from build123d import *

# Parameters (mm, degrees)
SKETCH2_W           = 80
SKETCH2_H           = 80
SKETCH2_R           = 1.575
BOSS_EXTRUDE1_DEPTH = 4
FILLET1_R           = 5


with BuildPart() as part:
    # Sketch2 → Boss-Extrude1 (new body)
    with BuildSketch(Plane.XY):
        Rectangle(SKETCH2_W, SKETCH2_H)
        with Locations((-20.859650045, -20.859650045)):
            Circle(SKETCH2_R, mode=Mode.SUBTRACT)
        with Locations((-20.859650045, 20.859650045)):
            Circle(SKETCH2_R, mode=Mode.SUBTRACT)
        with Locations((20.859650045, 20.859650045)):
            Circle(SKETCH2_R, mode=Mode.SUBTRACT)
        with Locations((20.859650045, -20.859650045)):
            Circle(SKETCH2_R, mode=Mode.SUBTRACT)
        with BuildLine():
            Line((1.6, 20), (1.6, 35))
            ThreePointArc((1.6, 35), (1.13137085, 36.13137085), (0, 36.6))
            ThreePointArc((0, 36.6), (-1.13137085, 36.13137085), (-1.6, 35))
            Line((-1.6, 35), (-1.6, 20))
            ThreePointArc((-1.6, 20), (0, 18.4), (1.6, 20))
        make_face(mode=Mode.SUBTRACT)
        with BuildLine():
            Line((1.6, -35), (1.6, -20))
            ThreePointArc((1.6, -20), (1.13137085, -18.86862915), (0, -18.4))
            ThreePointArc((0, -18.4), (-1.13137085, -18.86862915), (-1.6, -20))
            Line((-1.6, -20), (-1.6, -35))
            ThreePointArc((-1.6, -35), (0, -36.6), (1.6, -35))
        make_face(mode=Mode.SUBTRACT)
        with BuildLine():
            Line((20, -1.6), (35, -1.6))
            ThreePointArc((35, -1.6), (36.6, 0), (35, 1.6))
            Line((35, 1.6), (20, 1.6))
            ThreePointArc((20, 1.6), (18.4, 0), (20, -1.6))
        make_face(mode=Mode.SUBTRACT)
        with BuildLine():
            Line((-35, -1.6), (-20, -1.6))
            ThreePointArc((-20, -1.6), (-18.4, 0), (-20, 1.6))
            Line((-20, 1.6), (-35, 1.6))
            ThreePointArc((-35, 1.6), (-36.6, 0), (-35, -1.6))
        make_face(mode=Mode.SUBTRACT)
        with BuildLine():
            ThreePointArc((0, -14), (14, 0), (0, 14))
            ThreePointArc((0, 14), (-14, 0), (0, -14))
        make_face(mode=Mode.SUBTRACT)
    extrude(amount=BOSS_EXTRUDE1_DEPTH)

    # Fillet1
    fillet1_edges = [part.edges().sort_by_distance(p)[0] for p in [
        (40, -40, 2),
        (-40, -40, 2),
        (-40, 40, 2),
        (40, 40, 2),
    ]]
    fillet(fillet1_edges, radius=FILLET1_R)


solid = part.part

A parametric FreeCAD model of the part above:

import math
import FreeCAD as App
import Part
import Sketcher

V = App.Vector
Q = App.Units.Quantity


def edges_at(feature, points):
    """Names of the edges that pass closest to the given points."""
    edges = feature.Shape.Edges
    near = lambda p: min(range(len(edges)), key=lambda i: edges[i].distToShape(Part.Vertex(*p))[0])
    return sorted({f"Edge{near(p) + 1}" for p in points})


def add_polygon(sketch, points):
    """Adds a closed chain of lines whose ends are joined by coincident constraints."""
    first, n = sketch.GeometryCount, len(points)
    for a, b in zip(points, points[1:] + points[:1]):
        sketch.addGeometry(Part.LineSegment(App.Vector(*a, 0), App.Vector(*b, 0)), False)
    for i in range(n):
        sketch.addConstraint(Sketcher.Constraint("Coincident", first + i, 2, first + (i + 1) % n, 1))

doc = App.newDocument("Part")
body = doc.addObject("PartDesign::Body", "Body")

sketch1 = body.newObject("Sketcher::SketchObject", "Sketch")
sketch1.AttachmentSupport = (doc.getObject("XY_Plane"), [""])
sketch1.MapMode = "FlatFace"
add_polygon(sketch1, [(-40, 40), (-40, -40), (40, -40), (40, 40)])
sketch1.addGeometry(Part.Circle(V(-20.9, -20.9, 0), V(0, 0, 1), 1.6), False)
sketch1.addGeometry(Part.LineSegment(V(1.6, -20, 0), V(1.6, -35, 0)), False)
sketch1.addGeometry(Part.ArcOfCircle(Part.Circle(V(0, -35, 0), V(0, 0, 1), 1.6), math.radians(180), math.radians(360)), False)
sketch1.addGeometry(Part.LineSegment(V(-1.6, -35, 0), V(-1.6, -20, 0)), False)
sketch1.addGeometry(Part.ArcOfCircle(Part.Circle(V(0, -20, 0), V(0, 0, 1), 1.6), math.radians(90), math.radians(180)), False)
sketch1.addGeometry(Part.ArcOfCircle(Part.Circle(V(0, -20, 0), V(0, 0, 1), 1.6), math.radians(0), math.radians(90)), False)
sketch1.addGeometry(Part.Circle(V(20.9, -20.9, 0), V(0, 0, 1), 1.6), False)
sketch1.addGeometry(Part.LineSegment(V(-20, -1.6, 0), V(-35, -1.6, 0)), False)
sketch1.addGeometry(Part.ArcOfCircle(Part.Circle(V(-35, 0, 0), V(0, 0, 1), 1.6), math.radians(90), math.radians(270)), False)
sketch1.addGeometry(Part.LineSegment(V(-35, 1.6, 0), V(-20, 1.6, 0)), False)
sketch1.addGeometry(Part.ArcOfCircle(Part.Circle(V(-20, 0, 0), V(0, 0, 1), 1.6), math.radians(-90), math.radians(90)), False)
sketch1.addGeometry(Part.Circle(V(-20.9, 20.9, 0), V(0, 0, 1), 1.6), False)
sketch1.addGeometry(Part.Circle(V(0, 0, 0), V(0, 0, 1), 14), False)
sketch1.addGeometry(Part.LineSegment(V(35, -1.6, 0), V(20, -1.6, 0)), False)
sketch1.addGeometry(Part.ArcOfCircle(Part.Circle(V(20, 0, 0), V(0, 0, 1), 1.6), math.radians(90), math.radians(270)), False)
sketch1.addGeometry(Part.LineSegment(V(20, 1.6, 0), V(35, 1.6, 0)), False)
sketch1.addGeometry(Part.ArcOfCircle(Part.Circle(V(35, 0, 0), V(0, 0, 1), 1.6), math.radians(-90), math.radians(90)), False)
sketch1.addGeometry(Part.LineSegment(V(1.6, 35, 0), V(1.6, 20, 0)), False)
sketch1.addGeometry(Part.ArcOfCircle(Part.Circle(V(0, 20, 0), V(0, 0, 1), 1.6), math.radians(180), math.radians(360)), False)
sketch1.addGeometry(Part.LineSegment(V(-1.6, 20, 0), V(-1.6, 35, 0)), False)
sketch1.addGeometry(Part.ArcOfCircle(Part.Circle(V(0, 35, 0), V(0, 0, 1), 1.6), math.radians(90), math.radians(180)), False)
sketch1.addGeometry(Part.ArcOfCircle(Part.Circle(V(0, 35, 0), V(0, 0, 1), 1.6), math.radians(0), math.radians(90)), False)
sketch1.addGeometry(Part.Circle(V(20.9, 20.9, 0), V(0, 0, 1), 1.6), False)
sketch1.addConstraint([
    Sketcher.Constraint("Tangent", 5, 2, 6, 2),
    Sketcher.Constraint("Tangent", 6, 1, 7, 1),
    Sketcher.Constraint("Tangent", 7, 2, 8, 2),
    Sketcher.Constraint("Tangent", 8, 1, 9, 2),
    Sketcher.Constraint("Tangent", 9, 1, 5, 1),
    Sketcher.Constraint("Tangent", 11, 2, 12, 2),
    Sketcher.Constraint("Tangent", 12, 1, 13, 1),
    Sketcher.Constraint("Tangent", 13, 2, 14, 2),
    Sketcher.Constraint("Tangent", 14, 1, 11, 1),
    Sketcher.Constraint("Tangent", 17, 2, 18, 2),
    Sketcher.Constraint("Tangent", 18, 1, 19, 1),
    Sketcher.Constraint("Tangent", 19, 2, 20, 2),
    Sketcher.Constraint("Tangent", 20, 1, 17, 1),
    Sketcher.Constraint("Tangent", 21, 2, 22, 2),
    Sketcher.Constraint("Tangent", 22, 1, 23, 1),
    Sketcher.Constraint("Tangent", 23, 2, 24, 2),
    Sketcher.Constraint("Tangent", 24, 1, 25, 2),
    Sketcher.Constraint("Tangent", 25, 1, 21, 1),
    Sketcher.Constraint("Vertical", 0),
    Sketcher.Constraint("Horizontal", 1),
    Sketcher.Constraint("Vertical", 2),
    Sketcher.Constraint("Horizontal", 3),
    Sketcher.Constraint("Vertical", 5),
    Sketcher.Constraint("Vertical", 7),
    Sketcher.Constraint("Horizontal", 11),
    Sketcher.Constraint("Horizontal", 13),
    Sketcher.Constraint("Horizontal", 17),
    Sketcher.Constraint("Horizontal", 19),
    Sketcher.Constraint("Vertical", 21),
    Sketcher.Constraint("Vertical", 23),
    Sketcher.Constraint("Coincident", 16, 3, -1, 1),
    Sketcher.Constraint("Equal", 6, 8),
    Sketcher.Constraint("Equal", 4, 10),
    Sketcher.Constraint("Equal", 9, 12),
    Sketcher.Constraint("Equal", 10, 15),
    Sketcher.Constraint("Equal", 14, 18),
    Sketcher.Constraint("Equal", 20, 22),
    Sketcher.Constraint("Equal", 22, 24),
    Sketcher.Constraint("Equal", 15, 26),
    Sketcher.Constraint("Symmetric", 10, 3, 15, 3, -1, 1),
    Sketcher.Constraint("Symmetric", 14, 3, 18, 3, -1, 1),
    Sketcher.Constraint("Symmetric", 8, 3, 22, 3, -1, 1),
    Sketcher.Constraint("Symmetric", 4, 3, 26, 3, -1, 1),
    Sketcher.Constraint("Symmetric", 0, 2, 2, 2, -1, 1),
    Sketcher.Constraint("Symmetric", 4, 3, 10, 3, -2),
    Sketcher.Constraint("Symmetric", 12, 3, 20, 3, -2),
    Sketcher.Constraint("Symmetric", 6, 3, 24, 3, -1),
    Sketcher.Constraint("PointOnObject", 8, 1, -2),
    Sketcher.Constraint("PointOnObject", 24, 1, -2),
    Sketcher.Constraint("Equal", 3, 0),
    Sketcher.Constraint("Equal", 19, 5),
    Sketcher.Constraint("Diameter", 16, Q("28 mm")),
    Sketcher.Constraint("Radius", 6, Q("1.6 mm")),
    Sketcher.Constraint("Diameter", 4, Q("3.15 mm")),
    Sketcher.Constraint("DistanceX", 1, 1, 1, 2, Q("80 mm")),
    Sketcher.Constraint("DistanceX", 11, 2, 11, 1, Q("15 mm")),
    Sketcher.Constraint("DistanceY", 6, 3, -1, 1, Q("35 mm")),
    Sketcher.Constraint("DistanceX", 12, 3, -1, 1, Q("35 mm")),
    Sketcher.Constraint("DistanceX", 4, 3, 10, 3, Q("41.7193 mm")),
    Sketcher.Constraint("DistanceY", 4, 3, 15, 3, Q("41.7193 mm")),
])
pad1 = body.newObject("PartDesign::Pad", "Pad")
pad1.Profile = sketch1
pad1.Length = 4
doc.recompute()

fillet = body.newObject("PartDesign::Fillet", "Fillet")
fillet.Base = (pad1, edges_at(pad1, [
    (40, -40, 2),
    (-40, -40, 2),
    (-40, 40, 2),
    (40, 40, 2),
]))
fillet.Radius = 5

doc.recompute()
